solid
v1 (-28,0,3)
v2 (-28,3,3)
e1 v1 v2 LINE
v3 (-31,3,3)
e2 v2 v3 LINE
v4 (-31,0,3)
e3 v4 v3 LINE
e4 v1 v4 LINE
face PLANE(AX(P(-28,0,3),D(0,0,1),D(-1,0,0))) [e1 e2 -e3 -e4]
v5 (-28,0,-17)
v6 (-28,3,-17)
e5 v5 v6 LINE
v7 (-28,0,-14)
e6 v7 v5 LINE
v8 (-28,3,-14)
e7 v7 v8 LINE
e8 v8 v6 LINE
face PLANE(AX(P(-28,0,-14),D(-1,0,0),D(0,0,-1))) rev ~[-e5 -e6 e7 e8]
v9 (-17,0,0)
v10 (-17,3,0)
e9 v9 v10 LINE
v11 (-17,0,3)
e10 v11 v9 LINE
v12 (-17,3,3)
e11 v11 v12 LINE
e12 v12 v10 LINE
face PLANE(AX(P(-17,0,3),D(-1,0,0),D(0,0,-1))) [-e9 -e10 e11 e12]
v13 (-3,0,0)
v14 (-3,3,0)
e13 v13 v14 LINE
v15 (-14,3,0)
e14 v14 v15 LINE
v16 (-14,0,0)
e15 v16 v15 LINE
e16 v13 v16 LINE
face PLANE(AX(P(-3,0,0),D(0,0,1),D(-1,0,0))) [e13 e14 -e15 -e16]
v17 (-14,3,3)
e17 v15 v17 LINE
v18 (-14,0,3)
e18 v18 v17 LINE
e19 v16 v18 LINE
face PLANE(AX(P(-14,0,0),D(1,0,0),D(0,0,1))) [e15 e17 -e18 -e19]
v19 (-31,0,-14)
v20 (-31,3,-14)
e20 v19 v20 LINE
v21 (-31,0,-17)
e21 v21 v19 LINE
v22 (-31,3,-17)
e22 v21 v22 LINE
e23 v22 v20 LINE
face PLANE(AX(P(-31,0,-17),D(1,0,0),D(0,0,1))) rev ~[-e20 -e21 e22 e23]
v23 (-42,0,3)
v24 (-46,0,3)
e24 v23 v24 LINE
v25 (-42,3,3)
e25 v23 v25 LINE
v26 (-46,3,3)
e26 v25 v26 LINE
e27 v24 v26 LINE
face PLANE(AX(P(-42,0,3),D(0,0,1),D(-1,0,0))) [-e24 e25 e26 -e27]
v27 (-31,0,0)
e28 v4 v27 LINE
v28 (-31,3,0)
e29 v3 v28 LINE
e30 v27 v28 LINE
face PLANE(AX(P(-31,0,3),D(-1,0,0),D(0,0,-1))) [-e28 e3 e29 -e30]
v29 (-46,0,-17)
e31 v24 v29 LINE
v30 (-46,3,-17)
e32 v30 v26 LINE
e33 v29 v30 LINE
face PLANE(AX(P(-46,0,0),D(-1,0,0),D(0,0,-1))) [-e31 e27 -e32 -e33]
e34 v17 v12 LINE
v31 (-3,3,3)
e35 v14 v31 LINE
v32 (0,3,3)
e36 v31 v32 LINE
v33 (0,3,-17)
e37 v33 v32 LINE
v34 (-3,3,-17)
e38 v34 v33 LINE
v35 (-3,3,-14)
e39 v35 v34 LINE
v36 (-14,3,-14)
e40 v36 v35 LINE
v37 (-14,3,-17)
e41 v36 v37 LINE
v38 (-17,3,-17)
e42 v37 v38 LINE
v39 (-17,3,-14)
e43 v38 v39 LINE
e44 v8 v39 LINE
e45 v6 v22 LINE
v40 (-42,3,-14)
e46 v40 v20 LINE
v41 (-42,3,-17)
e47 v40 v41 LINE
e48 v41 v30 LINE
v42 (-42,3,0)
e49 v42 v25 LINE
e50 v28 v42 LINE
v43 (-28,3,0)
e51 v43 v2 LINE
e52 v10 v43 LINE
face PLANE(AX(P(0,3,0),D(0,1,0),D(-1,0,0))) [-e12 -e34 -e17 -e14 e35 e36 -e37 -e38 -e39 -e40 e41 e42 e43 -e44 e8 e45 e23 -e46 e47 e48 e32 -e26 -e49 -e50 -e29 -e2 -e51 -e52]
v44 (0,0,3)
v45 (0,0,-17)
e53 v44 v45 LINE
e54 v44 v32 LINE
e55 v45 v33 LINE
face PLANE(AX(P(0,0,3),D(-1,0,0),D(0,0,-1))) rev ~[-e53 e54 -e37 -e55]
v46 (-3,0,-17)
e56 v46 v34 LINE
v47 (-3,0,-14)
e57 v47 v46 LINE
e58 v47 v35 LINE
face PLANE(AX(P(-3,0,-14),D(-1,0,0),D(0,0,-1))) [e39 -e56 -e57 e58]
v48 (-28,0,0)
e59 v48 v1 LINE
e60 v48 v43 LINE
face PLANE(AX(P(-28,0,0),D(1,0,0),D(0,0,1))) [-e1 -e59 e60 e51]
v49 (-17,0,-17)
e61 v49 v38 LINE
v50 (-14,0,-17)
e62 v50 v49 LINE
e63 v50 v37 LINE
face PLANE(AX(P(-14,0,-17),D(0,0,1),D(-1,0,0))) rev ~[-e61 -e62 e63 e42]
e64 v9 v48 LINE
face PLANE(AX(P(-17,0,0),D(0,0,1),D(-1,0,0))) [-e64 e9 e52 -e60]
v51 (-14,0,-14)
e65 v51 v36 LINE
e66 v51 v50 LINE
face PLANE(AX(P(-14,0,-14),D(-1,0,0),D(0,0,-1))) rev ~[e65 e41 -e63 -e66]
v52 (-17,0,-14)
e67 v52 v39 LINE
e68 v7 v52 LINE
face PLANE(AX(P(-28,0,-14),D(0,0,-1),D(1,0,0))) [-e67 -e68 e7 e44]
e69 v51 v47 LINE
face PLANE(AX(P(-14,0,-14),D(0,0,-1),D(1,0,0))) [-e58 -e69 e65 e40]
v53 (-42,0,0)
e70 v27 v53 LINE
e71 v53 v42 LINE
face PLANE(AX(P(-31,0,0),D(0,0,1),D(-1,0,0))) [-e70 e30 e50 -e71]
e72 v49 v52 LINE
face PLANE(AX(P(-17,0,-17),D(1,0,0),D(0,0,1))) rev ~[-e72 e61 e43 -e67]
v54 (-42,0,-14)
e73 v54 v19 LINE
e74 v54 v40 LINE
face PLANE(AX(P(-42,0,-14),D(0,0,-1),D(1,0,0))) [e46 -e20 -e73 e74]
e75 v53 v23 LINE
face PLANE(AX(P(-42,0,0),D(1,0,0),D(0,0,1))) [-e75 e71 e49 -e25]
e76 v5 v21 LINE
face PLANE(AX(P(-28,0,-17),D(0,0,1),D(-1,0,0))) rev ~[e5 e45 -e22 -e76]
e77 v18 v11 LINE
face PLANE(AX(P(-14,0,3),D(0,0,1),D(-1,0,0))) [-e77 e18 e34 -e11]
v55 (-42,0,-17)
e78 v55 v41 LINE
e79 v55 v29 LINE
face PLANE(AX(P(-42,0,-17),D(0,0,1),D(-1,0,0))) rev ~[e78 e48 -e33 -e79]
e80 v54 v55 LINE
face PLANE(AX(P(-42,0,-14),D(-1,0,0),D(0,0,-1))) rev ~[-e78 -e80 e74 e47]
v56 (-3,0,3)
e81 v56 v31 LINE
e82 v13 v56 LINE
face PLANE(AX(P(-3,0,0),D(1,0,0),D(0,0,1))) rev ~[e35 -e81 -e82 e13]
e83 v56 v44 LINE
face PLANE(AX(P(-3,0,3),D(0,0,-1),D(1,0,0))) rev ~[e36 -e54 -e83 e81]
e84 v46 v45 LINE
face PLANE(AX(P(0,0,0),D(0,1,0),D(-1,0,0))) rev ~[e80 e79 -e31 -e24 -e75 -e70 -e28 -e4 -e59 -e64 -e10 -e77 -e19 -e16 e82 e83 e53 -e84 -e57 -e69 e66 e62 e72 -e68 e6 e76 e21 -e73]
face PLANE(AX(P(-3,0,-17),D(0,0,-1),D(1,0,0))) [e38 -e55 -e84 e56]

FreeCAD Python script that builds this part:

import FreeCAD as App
import Part
import Sketcher

V = App.Vector
Q = App.Units.Quantity


def add_polygon(sketch, points):
    """Adds a closed chain of lines whose ends are joined by coincident constraints."""
    first, n = sketch.GeometryCount, len(points)
    for a, b in zip(points, points[1:] + points[:1]):
        sketch.addGeometry(Part.LineSegment(App.Vector(*a, 0), App.Vector(*b, 0)), False)
    for i in range(n):
        sketch.addConstraint(Sketcher.Constraint("Coincident", first + i, 2, first + (i + 1) % n, 1))

doc = App.newDocument("Part")
body = doc.addObject("PartDesign::Body", "Body")

# Sketch on XZ plane
sketch1 = body.newObject("Sketcher::SketchObject", "Sketch")
sketch1.AttachmentSupport = (doc.getObject("XZ_Plane"), [""])
sketch1.MapMode = "FlatFace"
add_polygon(sketch1, [(0, 3), (0, -17), (-3, -17), (-3, -14), (-14, -14), (-14, -17), (-17, -17), (-17, -14), (-28, -14), (-28, -17), (-31, -17), (-31, -14), (-42, -14), (-42, -17), (-46, -17), (-46, 3), (-42, 3), (-42, 0), (-31, 0), (-31, 3), (-28, 3), (-28, 0), (-17, 0), (-17, 3), (-14, 3), (-14, 0), (-3, 0), (-3, 3)])  # lines 0-27
sketch1.addConstraint(Sketcher.Constraint("Vertical", 0))
sketch1.addConstraint(Sketcher.Constraint("Horizontal", 1))
sketch1.addConstraint(Sketcher.Constraint("Vertical", 2))
sketch1.addConstraint(Sketcher.Constraint("Horizontal", 3))
sketch1.addConstraint(Sketcher.Constraint("Vertical", 4))
sketch1.addConstraint(Sketcher.Constraint("Horizontal", 5))
sketch1.addConstraint(Sketcher.Constraint("Vertical", 6))
sketch1.addConstraint(Sketcher.Constraint("Horizontal", 7))
sketch1.addConstraint(Sketcher.Constraint("Vertical", 8))
sketch1.addConstraint(Sketcher.Constraint("Horizontal", 9))
sketch1.addConstraint(Sketcher.Constraint("Vertical", 10))
sketch1.addConstraint(Sketcher.Constraint("Horizontal", 11))
sketch1.addConstraint(Sketcher.Constraint("Vertical", 12))
sketch1.addConstraint(Sketcher.Constraint("Horizontal", 13))
sketch1.addConstraint(Sketcher.Constraint("Vertical", 14))
sketch1.addConstraint(Sketcher.Constraint("Horizontal", 15))
sketch1.addConstraint(Sketcher.Constraint("Vertical", 16))
sketch1.addConstraint(Sketcher.Constraint("Horizontal", 17))
sketch1.addConstraint(Sketcher.Constraint("Vertical", 18))
sketch1.addConstraint(Sketcher.Constraint("Horizontal", 19))
sketch1.addConstraint(Sketcher.Constraint("Vertical", 20))
sketch1.addConstraint(Sketcher.Constraint("Horizontal", 21))
sketch1.addConstraint(Sketcher.Constraint("Vertical", 22))
sketch1.addConstraint(Sketcher.Constraint("Horizontal", 23))
sketch1.addConstraint(Sketcher.Constraint("Vertical", 24))
sketch1.addConstraint(Sketcher.Constraint("Horizontal", 25))
sketch1.addConstraint(Sketcher.Constraint("Vertical", 26))
sketch1.addConstraint(Sketcher.Constraint("Horizontal", 27))
sketch1.addConstraint(Sketcher.Constraint("PointOnObject", 0, 2, -2))
sketch1.addConstraint(Sketcher.Constraint("PointOnObject", 16, 2, -1))
sketch1.addConstraint(Sketcher.Constraint("PointOnObject", 20, 2, -1))
sketch1.addConstraint(Sketcher.Constraint("PointOnObject", 24, 2, -1))
sketch1.addConstraint(Sketcher.Constraint("Horizontal", 1, 2, 4, 2))
sketch1.addConstraint(Sketcher.Constraint("Horizontal", 3, 2, 6, 2))
sketch1.addConstraint(Sketcher.Constraint("Horizontal", 5, 2, 8, 2))
sketch1.addConstraint(Sketcher.Constraint("Horizontal", 7, 2, 10, 2))
sketch1.addConstraint(Sketcher.Constraint("Horizontal", 9, 2, 12, 2))
sketch1.addConstraint(Sketcher.Constraint("Horizontal", 15, 2, 18, 2))
sketch1.addConstraint(Sketcher.Constraint("Horizontal", 19, 2, 22, 2))
sketch1.addConstraint(Sketcher.Constraint("Horizontal", 23, 2, 26, 2))
sketch1.addConstraint(Sketcher.Constraint("Vertical", 12, 2, 15, 2))
sketch1.addConstraint(Sketcher.Constraint("Vertical", 10, 2, 17, 2))
sketch1.addConstraint(Sketcher.Constraint("Vertical", 8, 2, 19, 2))
sketch1.addConstraint(Sketcher.Constraint("Vertical", 6, 2, 21, 2))
sketch1.addConstraint(Sketcher.Constraint("Vertical", 4, 2, 23, 2))
sketch1.addConstraint(Sketcher.Constraint("Vertical", 2, 2, 25, 2))
sketch1.addConstraint(Sketcher.Constraint("Equal", 1, 5))
sketch1.addConstraint(Sketcher.Constraint("Equal", 3, 7))
sketch1.addConstraint(Sketcher.Constraint("Equal", 5, 9))
sketch1.addConstraint(Sketcher.Constraint("Equal", 7, 11))
sketch1.addConstraint(Sketcher.Constraint("Equal", 27, 2))
sketch1.addConstraint(Sketcher.Constraint("Equal", 12, 16))
sketch1.addConstraint(Sketcher.Constraint("DistanceX", 1, 2, 1, 1, Q("3 mm")))
sketch1.addConstraint(Sketcher.Constraint("DistanceX", 3, 2, 3, 1, Q("11 mm")))
sketch1.addConstraint(Sketcher.Constraint("DistanceY", 0, 2, 0, 1, Q("20 mm")))
sketch1.addConstraint(Sketcher.Constraint("DistanceX", 13, 2, -1, 1, Q("46 mm")))
pad1 = body.newObject("PartDesign::Pad", "Pad")
pad1.Profile = sketch1
pad1.Length = 3
pad1.Reversed = True

doc.recompute()
